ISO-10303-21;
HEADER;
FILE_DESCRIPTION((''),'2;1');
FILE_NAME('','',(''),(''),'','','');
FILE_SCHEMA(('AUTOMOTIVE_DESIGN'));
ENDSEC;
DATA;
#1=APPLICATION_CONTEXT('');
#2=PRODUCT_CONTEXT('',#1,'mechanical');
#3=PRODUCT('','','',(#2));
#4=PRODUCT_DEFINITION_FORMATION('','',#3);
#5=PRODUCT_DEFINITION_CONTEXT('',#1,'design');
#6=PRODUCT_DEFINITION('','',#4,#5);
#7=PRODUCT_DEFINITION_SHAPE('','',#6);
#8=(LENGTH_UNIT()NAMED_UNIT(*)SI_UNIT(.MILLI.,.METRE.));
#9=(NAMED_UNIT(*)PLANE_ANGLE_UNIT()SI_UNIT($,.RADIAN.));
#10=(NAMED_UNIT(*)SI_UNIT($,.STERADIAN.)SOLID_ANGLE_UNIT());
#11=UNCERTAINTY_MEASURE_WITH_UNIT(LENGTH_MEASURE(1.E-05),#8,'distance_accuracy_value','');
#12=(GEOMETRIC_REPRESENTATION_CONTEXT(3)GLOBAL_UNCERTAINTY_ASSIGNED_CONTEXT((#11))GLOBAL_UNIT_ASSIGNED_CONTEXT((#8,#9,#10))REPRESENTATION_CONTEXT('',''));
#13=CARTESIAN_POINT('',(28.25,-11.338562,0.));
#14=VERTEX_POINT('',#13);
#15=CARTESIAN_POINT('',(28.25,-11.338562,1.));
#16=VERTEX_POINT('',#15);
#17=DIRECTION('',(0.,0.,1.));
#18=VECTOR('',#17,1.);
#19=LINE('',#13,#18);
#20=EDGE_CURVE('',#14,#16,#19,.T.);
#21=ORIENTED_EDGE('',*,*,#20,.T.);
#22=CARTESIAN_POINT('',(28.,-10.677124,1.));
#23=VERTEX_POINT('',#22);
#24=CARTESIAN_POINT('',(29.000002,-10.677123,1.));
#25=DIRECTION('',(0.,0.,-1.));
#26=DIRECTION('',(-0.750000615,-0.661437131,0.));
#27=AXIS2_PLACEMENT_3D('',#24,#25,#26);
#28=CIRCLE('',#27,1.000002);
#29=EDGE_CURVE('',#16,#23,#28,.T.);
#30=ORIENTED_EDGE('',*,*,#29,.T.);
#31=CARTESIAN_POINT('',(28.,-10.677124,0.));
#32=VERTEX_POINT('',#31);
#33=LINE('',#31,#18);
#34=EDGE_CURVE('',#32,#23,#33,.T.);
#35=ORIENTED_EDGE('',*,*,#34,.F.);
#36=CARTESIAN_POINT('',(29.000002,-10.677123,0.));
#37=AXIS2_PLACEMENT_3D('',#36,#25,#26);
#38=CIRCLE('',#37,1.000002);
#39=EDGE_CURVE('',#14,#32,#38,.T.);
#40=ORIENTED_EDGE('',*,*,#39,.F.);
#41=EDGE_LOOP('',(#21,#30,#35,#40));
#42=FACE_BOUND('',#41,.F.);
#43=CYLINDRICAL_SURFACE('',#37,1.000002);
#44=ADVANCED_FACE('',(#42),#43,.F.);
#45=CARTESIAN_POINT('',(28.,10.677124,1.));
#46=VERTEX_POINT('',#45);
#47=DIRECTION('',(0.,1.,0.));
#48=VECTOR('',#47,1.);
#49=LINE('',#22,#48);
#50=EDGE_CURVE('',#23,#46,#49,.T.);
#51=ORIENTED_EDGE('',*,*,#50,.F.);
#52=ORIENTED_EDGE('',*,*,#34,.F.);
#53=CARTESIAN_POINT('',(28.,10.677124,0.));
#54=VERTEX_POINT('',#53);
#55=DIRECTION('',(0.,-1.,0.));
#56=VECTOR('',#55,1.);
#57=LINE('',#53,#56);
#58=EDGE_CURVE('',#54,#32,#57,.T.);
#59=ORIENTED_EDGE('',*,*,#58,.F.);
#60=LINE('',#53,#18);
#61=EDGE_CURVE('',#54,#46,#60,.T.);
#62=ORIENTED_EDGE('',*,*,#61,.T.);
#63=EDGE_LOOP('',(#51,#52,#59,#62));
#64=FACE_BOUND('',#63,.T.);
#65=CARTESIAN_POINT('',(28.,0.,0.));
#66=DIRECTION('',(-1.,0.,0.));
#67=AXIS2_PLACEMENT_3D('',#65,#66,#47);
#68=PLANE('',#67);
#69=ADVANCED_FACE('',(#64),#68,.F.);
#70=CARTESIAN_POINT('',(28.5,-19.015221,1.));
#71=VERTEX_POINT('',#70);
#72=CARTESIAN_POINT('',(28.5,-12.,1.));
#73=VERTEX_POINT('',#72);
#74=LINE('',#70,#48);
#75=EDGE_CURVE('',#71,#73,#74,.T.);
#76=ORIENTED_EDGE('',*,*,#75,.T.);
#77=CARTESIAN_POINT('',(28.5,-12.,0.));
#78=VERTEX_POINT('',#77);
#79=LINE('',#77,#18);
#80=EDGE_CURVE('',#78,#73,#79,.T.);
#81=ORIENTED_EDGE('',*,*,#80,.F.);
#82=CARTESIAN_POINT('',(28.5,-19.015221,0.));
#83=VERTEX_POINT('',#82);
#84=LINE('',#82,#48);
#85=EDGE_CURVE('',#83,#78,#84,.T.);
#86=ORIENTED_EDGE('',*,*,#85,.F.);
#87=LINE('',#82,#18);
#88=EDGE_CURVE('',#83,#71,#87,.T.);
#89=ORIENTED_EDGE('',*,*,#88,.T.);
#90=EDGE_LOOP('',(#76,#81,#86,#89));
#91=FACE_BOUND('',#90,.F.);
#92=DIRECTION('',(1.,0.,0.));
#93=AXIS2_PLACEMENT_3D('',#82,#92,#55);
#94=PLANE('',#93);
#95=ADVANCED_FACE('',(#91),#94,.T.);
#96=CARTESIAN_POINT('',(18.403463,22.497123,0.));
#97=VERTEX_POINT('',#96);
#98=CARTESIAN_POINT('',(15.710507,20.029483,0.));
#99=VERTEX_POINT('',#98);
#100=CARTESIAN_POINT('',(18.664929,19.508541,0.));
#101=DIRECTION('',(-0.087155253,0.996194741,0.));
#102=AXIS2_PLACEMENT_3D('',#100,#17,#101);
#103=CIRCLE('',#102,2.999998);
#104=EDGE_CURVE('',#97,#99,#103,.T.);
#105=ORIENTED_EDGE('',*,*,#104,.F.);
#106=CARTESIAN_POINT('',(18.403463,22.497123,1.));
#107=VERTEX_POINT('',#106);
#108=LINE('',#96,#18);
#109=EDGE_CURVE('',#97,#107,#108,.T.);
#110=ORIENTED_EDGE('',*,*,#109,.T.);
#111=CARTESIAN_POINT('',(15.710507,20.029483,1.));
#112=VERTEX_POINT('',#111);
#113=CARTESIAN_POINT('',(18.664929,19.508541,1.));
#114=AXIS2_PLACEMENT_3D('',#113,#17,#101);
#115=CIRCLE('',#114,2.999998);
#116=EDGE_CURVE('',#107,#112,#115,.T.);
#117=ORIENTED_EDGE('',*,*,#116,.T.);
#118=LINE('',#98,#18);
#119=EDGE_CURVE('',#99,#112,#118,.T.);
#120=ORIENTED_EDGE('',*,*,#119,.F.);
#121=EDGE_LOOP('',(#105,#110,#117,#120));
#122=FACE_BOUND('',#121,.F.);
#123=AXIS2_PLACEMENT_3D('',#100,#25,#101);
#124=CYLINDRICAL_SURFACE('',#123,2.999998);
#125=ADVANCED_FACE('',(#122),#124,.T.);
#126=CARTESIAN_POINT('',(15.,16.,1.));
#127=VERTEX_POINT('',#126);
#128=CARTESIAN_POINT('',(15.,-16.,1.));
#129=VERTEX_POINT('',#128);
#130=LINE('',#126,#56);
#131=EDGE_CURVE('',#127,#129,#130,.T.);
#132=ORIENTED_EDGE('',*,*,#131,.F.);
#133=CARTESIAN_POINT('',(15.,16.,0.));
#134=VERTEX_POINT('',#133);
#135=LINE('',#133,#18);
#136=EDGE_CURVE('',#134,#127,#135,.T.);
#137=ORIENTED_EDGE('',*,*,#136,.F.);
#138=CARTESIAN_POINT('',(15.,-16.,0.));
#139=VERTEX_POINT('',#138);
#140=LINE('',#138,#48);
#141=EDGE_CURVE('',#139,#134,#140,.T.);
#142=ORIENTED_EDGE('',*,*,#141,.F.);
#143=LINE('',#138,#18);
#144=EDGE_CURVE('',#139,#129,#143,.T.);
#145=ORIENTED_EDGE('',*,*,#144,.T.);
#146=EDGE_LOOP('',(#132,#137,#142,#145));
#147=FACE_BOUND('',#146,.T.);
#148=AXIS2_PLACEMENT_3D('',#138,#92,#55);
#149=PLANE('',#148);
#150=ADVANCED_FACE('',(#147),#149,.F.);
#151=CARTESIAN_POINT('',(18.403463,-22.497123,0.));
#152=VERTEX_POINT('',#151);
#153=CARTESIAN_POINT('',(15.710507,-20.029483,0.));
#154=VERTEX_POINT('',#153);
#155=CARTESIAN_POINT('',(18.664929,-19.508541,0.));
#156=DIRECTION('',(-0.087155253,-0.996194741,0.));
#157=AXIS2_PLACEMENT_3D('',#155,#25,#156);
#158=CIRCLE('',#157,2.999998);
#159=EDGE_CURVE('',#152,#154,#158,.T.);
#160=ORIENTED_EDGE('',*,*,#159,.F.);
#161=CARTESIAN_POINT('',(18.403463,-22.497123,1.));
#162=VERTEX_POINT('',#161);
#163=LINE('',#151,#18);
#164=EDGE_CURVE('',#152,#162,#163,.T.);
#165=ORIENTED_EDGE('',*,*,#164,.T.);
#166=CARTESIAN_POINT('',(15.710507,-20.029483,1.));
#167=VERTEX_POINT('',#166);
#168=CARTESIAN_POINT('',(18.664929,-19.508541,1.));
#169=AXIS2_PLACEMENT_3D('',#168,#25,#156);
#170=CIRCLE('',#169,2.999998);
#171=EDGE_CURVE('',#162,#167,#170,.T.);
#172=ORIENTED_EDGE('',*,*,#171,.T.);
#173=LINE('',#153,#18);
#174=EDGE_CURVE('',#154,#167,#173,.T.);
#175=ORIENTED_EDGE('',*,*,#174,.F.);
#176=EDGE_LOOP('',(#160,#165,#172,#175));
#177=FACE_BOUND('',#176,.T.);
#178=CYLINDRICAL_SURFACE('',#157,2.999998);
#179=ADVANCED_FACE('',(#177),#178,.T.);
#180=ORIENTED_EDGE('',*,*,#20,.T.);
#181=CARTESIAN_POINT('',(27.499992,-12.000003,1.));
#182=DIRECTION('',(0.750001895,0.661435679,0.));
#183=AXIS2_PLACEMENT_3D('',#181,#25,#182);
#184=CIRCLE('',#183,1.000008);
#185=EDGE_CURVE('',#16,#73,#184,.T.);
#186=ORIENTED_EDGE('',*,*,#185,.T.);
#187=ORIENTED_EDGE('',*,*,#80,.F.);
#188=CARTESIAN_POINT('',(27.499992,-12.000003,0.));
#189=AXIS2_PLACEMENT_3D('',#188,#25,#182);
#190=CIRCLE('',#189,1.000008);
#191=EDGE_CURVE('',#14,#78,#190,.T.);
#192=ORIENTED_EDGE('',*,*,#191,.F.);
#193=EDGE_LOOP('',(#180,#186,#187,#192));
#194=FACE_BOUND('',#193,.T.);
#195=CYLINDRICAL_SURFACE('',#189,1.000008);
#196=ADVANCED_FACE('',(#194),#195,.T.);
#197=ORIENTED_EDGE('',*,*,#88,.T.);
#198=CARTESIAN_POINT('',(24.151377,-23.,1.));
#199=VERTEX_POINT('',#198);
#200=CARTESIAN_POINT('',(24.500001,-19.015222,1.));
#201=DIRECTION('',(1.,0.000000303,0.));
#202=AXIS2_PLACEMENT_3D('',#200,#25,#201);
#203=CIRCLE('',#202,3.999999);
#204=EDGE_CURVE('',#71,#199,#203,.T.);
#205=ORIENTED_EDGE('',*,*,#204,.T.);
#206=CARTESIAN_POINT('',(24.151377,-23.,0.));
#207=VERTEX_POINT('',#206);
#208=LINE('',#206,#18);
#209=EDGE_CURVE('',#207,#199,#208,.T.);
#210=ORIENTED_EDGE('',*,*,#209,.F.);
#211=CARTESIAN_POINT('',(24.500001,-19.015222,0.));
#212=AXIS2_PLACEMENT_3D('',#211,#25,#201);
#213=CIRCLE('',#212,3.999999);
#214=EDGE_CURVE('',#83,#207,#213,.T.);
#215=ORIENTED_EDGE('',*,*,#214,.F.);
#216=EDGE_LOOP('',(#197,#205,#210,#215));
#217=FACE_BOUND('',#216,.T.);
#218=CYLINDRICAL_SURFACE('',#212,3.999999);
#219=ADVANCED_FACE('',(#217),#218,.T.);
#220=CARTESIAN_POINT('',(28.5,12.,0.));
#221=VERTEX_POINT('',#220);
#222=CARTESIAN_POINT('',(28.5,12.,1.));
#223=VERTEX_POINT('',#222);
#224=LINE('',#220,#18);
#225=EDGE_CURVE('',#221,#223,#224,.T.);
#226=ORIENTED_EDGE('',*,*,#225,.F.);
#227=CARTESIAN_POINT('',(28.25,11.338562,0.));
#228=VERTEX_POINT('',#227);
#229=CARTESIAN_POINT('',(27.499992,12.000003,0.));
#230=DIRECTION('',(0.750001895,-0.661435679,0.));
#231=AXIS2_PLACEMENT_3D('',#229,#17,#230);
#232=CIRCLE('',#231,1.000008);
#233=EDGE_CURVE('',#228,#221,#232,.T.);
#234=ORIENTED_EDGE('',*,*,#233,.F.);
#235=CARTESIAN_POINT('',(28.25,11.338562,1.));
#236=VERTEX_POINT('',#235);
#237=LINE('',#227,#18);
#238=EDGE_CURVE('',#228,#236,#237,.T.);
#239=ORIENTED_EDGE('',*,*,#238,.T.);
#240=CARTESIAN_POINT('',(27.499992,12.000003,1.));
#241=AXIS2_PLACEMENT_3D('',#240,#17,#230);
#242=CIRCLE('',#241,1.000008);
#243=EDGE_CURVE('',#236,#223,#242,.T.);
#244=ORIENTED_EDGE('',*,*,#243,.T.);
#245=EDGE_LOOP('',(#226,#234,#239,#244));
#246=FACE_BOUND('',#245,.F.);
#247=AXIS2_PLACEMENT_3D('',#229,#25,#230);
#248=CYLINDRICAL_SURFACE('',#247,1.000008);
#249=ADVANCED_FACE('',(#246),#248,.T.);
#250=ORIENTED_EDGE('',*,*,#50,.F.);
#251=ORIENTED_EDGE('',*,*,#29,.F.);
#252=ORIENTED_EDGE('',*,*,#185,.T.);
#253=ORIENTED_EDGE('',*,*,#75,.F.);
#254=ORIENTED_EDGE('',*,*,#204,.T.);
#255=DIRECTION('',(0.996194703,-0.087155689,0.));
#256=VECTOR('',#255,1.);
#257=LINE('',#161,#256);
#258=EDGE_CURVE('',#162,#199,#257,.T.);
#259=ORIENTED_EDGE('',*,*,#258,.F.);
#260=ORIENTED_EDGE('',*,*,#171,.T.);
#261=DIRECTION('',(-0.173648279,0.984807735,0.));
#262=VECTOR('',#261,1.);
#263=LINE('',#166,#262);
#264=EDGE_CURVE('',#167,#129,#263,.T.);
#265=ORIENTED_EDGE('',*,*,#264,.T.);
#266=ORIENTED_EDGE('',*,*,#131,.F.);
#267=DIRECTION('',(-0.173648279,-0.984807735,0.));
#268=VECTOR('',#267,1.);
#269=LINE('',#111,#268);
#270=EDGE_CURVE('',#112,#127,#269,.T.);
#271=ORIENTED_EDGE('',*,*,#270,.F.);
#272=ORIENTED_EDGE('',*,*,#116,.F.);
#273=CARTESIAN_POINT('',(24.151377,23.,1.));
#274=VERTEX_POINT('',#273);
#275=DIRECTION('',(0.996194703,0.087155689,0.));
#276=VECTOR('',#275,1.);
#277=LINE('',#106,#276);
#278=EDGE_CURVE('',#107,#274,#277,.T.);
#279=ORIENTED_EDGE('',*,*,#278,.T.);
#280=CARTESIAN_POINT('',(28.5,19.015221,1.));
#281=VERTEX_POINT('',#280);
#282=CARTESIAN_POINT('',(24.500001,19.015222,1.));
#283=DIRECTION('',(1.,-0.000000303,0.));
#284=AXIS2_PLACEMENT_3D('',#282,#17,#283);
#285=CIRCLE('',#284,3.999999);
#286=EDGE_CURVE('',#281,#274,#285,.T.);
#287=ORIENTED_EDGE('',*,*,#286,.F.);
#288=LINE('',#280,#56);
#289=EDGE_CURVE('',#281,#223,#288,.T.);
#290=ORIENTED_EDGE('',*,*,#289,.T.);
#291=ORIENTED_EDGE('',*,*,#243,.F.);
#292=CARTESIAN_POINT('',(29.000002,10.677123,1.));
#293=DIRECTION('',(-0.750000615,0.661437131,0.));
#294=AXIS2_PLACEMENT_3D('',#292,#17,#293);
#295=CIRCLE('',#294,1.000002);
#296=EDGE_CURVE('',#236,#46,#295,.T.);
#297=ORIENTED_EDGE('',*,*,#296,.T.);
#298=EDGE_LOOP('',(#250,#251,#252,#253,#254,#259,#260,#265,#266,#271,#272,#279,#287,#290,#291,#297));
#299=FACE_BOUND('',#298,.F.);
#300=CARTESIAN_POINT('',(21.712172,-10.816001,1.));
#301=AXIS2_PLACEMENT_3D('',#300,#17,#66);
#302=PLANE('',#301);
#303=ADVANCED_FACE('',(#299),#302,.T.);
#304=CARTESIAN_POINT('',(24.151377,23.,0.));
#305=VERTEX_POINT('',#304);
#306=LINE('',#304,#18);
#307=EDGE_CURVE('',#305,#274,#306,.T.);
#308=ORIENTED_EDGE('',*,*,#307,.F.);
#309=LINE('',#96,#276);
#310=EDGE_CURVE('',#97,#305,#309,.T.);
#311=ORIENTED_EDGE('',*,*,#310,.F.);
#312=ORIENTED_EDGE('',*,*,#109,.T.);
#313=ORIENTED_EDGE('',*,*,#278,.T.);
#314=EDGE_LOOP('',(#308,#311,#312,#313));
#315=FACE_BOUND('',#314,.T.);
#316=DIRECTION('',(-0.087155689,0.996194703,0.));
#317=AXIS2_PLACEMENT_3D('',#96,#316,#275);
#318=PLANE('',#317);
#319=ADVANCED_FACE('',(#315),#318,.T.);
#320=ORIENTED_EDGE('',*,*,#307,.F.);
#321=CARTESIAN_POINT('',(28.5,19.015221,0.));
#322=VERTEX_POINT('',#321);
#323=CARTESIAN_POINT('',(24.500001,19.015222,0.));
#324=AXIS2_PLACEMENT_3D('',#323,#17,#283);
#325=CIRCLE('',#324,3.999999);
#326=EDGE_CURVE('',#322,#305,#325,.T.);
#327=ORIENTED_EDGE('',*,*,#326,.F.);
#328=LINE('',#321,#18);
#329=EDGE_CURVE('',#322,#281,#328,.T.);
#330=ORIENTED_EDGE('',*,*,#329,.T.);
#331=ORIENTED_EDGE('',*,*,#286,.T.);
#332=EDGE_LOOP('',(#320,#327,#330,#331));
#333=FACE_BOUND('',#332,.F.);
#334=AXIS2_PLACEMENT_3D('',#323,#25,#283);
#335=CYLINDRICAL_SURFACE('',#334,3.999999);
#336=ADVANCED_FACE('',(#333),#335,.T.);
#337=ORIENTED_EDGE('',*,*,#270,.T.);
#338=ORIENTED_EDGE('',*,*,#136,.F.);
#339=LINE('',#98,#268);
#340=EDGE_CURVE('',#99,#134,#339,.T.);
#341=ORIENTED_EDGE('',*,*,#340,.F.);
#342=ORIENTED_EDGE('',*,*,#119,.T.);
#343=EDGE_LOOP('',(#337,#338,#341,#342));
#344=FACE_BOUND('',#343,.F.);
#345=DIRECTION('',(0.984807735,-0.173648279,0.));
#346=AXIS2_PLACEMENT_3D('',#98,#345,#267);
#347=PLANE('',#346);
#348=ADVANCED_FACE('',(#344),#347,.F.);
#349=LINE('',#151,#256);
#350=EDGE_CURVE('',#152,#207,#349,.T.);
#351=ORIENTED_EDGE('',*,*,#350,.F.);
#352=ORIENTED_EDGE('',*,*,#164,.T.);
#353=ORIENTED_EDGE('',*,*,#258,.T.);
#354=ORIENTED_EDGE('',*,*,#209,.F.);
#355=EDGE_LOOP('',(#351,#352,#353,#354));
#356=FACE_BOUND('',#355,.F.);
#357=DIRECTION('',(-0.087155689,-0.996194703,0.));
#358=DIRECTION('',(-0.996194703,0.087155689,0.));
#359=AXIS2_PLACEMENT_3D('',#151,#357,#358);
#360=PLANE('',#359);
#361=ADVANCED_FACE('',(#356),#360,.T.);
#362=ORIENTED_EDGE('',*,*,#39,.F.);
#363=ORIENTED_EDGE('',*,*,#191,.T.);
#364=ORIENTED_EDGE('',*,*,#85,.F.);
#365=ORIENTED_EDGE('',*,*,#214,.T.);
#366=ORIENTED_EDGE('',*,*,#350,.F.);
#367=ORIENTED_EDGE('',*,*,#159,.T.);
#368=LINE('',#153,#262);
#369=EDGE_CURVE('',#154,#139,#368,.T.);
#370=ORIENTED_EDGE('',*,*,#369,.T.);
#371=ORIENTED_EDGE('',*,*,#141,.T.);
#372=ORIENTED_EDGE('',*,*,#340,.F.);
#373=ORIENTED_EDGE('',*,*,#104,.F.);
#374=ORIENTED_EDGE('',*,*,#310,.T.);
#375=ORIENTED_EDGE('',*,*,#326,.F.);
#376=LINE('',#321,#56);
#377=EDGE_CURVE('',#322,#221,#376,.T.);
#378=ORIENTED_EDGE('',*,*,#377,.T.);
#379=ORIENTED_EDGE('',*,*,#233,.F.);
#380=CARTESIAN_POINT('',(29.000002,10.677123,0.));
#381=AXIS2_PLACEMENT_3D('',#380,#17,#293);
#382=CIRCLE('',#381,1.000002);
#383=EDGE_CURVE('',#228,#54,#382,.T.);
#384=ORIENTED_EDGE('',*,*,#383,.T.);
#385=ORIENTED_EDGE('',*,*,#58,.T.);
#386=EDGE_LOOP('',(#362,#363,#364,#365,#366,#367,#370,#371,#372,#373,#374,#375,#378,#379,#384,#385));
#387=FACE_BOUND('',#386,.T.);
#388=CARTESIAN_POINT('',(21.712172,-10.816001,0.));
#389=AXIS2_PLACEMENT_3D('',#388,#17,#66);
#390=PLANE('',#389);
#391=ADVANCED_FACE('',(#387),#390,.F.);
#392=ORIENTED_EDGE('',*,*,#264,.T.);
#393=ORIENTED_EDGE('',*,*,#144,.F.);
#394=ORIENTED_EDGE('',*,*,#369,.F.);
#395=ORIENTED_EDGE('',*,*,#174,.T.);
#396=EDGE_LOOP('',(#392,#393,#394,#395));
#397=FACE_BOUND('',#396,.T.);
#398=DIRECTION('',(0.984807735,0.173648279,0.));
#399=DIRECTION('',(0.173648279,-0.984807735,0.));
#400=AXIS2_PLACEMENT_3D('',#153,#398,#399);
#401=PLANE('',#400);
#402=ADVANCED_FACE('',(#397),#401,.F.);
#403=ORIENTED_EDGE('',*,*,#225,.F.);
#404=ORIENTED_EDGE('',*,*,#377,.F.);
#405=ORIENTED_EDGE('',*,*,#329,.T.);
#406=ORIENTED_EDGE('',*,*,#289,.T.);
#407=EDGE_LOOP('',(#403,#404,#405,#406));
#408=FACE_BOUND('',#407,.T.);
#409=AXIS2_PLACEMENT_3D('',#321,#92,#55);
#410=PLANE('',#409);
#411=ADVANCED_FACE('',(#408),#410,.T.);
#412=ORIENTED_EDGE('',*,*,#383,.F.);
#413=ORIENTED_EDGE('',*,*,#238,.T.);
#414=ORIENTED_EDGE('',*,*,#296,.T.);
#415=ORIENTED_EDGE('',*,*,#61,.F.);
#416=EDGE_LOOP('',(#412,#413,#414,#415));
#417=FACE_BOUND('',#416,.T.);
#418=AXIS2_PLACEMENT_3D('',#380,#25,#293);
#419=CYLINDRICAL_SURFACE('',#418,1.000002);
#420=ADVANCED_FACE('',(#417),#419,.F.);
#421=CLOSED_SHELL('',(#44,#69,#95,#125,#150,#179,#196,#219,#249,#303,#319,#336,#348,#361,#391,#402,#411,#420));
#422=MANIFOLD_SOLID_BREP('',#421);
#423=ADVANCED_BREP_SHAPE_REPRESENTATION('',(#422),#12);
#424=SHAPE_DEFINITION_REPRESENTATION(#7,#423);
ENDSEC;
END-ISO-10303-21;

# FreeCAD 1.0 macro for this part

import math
import FreeCAD as App
import Part
import Sketcher

V = App.Vector
Q = App.Units.Quantity

doc = App.newDocument("Part")
params = doc.addObject("Spreadsheet::Sheet", "Params")
for row, (alias, value) in enumerate([
    ("sketch1_radius", "3.999999 mm"),
    ("sketch1_width", "13 mm"),
    ("sketch1_height", "16 mm"),
    ("pad1_length", "1 mm"),
], start=1):
    params.set(f"A{row}", alias)
    params.set(f"B{row}", "=" + value)
    params.setAlias(f"B{row}", alias)

body = doc.addObject("PartDesign::Body", "Body")

# Sketch on XY plane
sketch1 = body.newObject("Sketcher::SketchObject", "Sketch")
sketch1.AttachmentSupport = (doc.getObject("XY_Plane"), [""])
sketch1.MapMode = "FlatFace"
sketch1.addGeometry([
    Part.ArcOfCircle(Part.Circle(V(24.5, 19, 0), V(0, 0, 1), 4), math.radians(0), math.radians(95)),  # 0
    Part.LineSegment(V(24.2, 23, 0), V(18.4, 22.5, 0)),  # 1
    Part.ArcOfCircle(Part.Circle(V(18.7, 19.5, 0), V(0, 0, 1), 3), math.radians(95), math.radians(170)),  # 2
    Part.LineSegment(V(15.7, 20, 0), V(15, 16, 0)),  # 3
    Part.LineSegment(V(15, 16, 0), V(15, 0, 0)),  # 4
    Part.LineSegment(V(15, 0, 0), V(28, 0, 0)),  # 5
    Part.LineSegment(V(28, 0, 0), V(28, 10.7, 0)),  # 6
    Part.ArcOfCircle(Part.Circle(V(29, 10.7, 0), V(0, 0, 1), 1), math.radians(139), math.radians(180)),  # 7
    Part.ArcOfCircle(Part.Circle(V(27.5, 12, 0), V(0, 0, 1), 1), math.radians(-41), math.radians(0)),  # 8
    Part.LineSegment(V(28.5, 12, 0), V(28.5, 19, 0)),  # 9
], False)
sketch1.addConstraint([
    Sketcher.Constraint("Tangent", 0, 2, 1, 1),
    Sketcher.Constraint("Tangent", 1, 2, 2, 1),
    Sketcher.Constraint("Tangent", 2, 2, 3, 1),
    Sketcher.Constraint("Coincident", 3, 2, 4, 1),
    Sketcher.Constraint("Coincident", 4, 2, 5, 1),
    Sketcher.Constraint("Coincident", 5, 2, 6, 1),
    Sketcher.Constraint("Tangent", 6, 2, 7, 2),
    Sketcher.Constraint("Tangent", 7, 1, 8, 1),
    Sketcher.Constraint("Coincident", 8, 2, 9, 1),
    Sketcher.Constraint("Tangent", 9, 2, 0, 1),
    Sketcher.Constraint("Vertical", 4),
    Sketcher.Constraint("Horizontal", 5),
    Sketcher.Constraint("Vertical", 6),
    Sketcher.Constraint("Vertical", 9),
    Sketcher.Constraint("PointOnObject", 4, 2, -1),
    Sketcher.Constraint("Radius", 0, 3.999999),
    Sketcher.Constraint("DistanceX", 5, 1, 5, 2, 13.0),
    Sketcher.Constraint("DistanceY", 4, 2, 4, 1, 16.0),
    Sketcher.Constraint("Angle", 1, Q("-175.000003 deg")),
    Sketcher.Constraint("Angle", 3, Q("-100.000006 deg")),
    Sketcher.Constraint("DistanceY", -1, 1, 0, 2, 23.0),
    Sketcher.Constraint("DistanceX", -1, 1, 3, 2, 15.0),
    Sketcher.Constraint("DistanceY", -1, 1, 8, 2, 12.0),
    Sketcher.Constraint("DistanceX", -1, 1, 0, 3, 24.500001),
    Sketcher.Constraint("DistanceX", 0, 3, 7, 3, 4.500002),
    Sketcher.Constraint("DistanceX", -1, 1, 7, 1, 28.25),
    Sketcher.Constraint("DistanceY", 7, 3, 1, 2, 11.82),
    Sketcher.Constraint("Radius", 2, 2.999998),
])
sketch1.setExpression("Constraints[15]", "Params.sketch1_radius")
sketch1.setExpression("Constraints[16]", "Params.sketch1_width")
sketch1.setExpression("Constraints[17]", "Params.sketch1_height")
pad1 = body.newObject("PartDesign::Pad", "Pad")
pad1.Profile = sketch1
pad1.setExpression("Length", "Params.pad1_length")
doc.recompute()

mirrored = body.newObject("PartDesign::Mirrored", "Mirrored")
mirrored.Originals = [pad1]
mirrored.MirrorPlane = (doc.getObject("XZ_Plane"), [""])
body.Tip = mirrored

doc.recompute()
